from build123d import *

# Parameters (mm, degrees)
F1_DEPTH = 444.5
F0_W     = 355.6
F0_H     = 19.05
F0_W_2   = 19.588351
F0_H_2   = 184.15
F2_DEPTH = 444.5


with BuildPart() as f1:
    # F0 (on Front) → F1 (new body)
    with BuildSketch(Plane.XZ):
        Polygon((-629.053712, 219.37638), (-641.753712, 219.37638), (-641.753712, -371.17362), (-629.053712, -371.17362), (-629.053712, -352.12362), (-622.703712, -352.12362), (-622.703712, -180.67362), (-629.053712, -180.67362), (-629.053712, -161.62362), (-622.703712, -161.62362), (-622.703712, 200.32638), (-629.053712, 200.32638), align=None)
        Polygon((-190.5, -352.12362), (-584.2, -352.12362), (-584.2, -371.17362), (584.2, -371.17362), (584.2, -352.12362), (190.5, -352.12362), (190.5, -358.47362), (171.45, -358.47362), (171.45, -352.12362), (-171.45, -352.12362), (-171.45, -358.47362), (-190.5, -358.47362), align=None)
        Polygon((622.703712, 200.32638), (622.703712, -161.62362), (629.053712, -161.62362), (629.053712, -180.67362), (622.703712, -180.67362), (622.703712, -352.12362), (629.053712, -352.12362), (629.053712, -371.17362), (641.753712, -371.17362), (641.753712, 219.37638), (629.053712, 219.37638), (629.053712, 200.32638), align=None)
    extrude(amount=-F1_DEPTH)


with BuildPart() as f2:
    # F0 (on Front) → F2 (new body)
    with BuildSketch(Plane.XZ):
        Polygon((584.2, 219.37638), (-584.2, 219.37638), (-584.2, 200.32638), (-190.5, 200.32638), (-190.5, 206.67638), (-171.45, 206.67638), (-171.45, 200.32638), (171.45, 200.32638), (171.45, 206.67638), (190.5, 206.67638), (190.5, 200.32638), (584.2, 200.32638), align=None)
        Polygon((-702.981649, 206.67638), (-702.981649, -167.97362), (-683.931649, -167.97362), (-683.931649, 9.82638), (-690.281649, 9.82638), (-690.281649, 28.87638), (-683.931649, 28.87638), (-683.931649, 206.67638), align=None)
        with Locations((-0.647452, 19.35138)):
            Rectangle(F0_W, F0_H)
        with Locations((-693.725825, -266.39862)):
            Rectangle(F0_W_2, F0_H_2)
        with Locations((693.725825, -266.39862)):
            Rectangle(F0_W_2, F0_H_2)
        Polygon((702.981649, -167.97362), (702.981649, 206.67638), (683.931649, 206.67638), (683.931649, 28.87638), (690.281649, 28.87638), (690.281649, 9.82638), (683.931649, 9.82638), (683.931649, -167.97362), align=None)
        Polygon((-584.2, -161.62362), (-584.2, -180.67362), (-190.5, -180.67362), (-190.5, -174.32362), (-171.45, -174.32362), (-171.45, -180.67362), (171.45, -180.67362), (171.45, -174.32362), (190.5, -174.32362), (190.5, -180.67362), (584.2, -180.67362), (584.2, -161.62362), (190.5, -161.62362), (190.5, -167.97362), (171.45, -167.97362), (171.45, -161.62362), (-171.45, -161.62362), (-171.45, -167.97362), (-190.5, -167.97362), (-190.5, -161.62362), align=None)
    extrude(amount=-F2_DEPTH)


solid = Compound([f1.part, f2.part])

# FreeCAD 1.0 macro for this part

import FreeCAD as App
import Part
import Sketcher

V = App.Vector
Q = App.Units.Quantity

doc = App.newDocument("Part")
body = doc.addObject("PartDesign::Body", "Body")
body.AllowCompound = True

# Sketch on XZ plane
sketch1 = doc.addObject("Sketcher::SketchObject", "Sketch")
body.addObject(sketch1)
sketch1.AttachmentSupport = (doc.XZ_Plane, [""])
sketch1.MapMode = "FlatFace"
sketch1.addGeometry([
    Part.LineSegment(V(-629, 219, 0), V(-642, 219, 0)),  # 0
    Part.LineSegment(V(-642, 219, 0), V(-642, -371, 0)),  # 1
    Part.LineSegment(V(-642, -371, 0), V(-629, -371, 0)),  # 2
    Part.LineSegment(V(-629, -371, 0), V(-629, -352, 0)),  # 3
    Part.LineSegment(V(-629, -352, 0), V(-623, -352, 0)),  # 4
    Part.LineSegment(V(-623, -352, 0), V(-623, -181, 0)),  # 5
    Part.LineSegment(V(-623, -181, 0), V(-629, -181, 0)),  # 6
    Part.LineSegment(V(-629, -181, 0), V(-629, -162, 0)),  # 7
    Part.LineSegment(V(-629, -162, 0), V(-623, -162, 0)),  # 8
    Part.LineSegment(V(-623, -162, 0), V(-623, 200, 0)),  # 9
    Part.LineSegment(V(-623, 200, 0), V(-629, 200, 0)),  # 10
    Part.LineSegment(V(-629, 200, 0), V(-629, 219, 0)),  # 11
    Part.LineSegment(V(-190, -352, 0), V(-584, -352, 0)),  # 12
    Part.LineSegment(V(-584, -352, 0), V(-584, -371, 0)),  # 13
    Part.LineSegment(V(-584, -371, 0), V(584, -371, 0)),  # 14
    Part.LineSegment(V(584, -371, 0), V(584, -352, 0)),  # 15
    Part.LineSegment(V(584, -352, 0), V(190, -352, 0)),  # 16
    Part.LineSegment(V(190, -352, 0), V(190, -358, 0)),  # 17
    Part.LineSegment(V(190, -358, 0), V(171, -358, 0)),  # 18
    Part.LineSegment(V(171, -358, 0), V(171, -352, 0)),  # 19
    Part.LineSegment(V(171, -352, 0), V(-171, -352, 0)),  # 20
    Part.LineSegment(V(-171, -352, 0), V(-171, -358, 0)),  # 21
    Part.LineSegment(V(-171, -358, 0), V(-190, -358, 0)),  # 22
    Part.LineSegment(V(-190, -358, 0), V(-190, -352, 0)),  # 23
    Part.LineSegment(V(623, 200, 0), V(623, -162, 0)),  # 24
    Part.LineSegment(V(623, -162, 0), V(629, -162, 0)),  # 25
    Part.LineSegment(V(629, -162, 0), V(629, -181, 0)),  # 26
    Part.LineSegment(V(629, -181, 0), V(623, -181, 0)),  # 27
    Part.LineSegment(V(623, -181, 0), V(623, -352, 0)),  # 28
    Part.LineSegment(V(623, -352, 0), V(629, -352, 0)),  # 29
    Part.LineSegment(V(629, -352, 0), V(629, -371, 0)),  # 30
    Part.LineSegment(V(629, -371, 0), V(642, -371, 0)),  # 31
    Part.LineSegment(V(642, -371, 0), V(642, 219, 0)),  # 32
    Part.LineSegment(V(642, 219, 0), V(629, 219, 0)),  # 33
    Part.LineSegment(V(629, 219, 0), V(629, 200, 0)),  # 34
    Part.LineSegment(V(629, 200, 0), V(623, 200, 0)),  # 35
], False)
sketch1.addConstraint([
    Sketcher.Constraint("Coincident", 0, 2, 1, 1),
    Sketcher.Constraint("Coincident", 1, 2, 2, 1),
    Sketcher.Constraint("Coincident", 2, 2, 3, 1),
    Sketcher.Constraint("Coincident", 3, 2, 4, 1),
    Sketcher.Constraint("Coincident", 4, 2, 5, 1),
    Sketcher.Constraint("Coincident", 5, 2, 6, 1),
    Sketcher.Constraint("Coincident", 6, 2, 7, 1),
    Sketcher.Constraint("Coincident", 7, 2, 8, 1),
    Sketcher.Constraint("Coincident", 8, 2, 9, 1),
    Sketcher.Constraint("Coincident", 9, 2, 10, 1),
    Sketcher.Constraint("Coincident", 10, 2, 11, 1),
    Sketcher.Constraint("Coincident", 11, 2, 0, 1),
    Sketcher.Constraint("Coincident", 12, 2, 13, 1),
    Sketcher.Constraint("Coincident", 13, 2, 14, 1),
    Sketcher.Constraint("Coincident", 14, 2, 15, 1),
    Sketcher.Constraint("Coincident", 15, 2, 16, 1),
    Sketcher.Constraint("Coincident", 16, 2, 17, 1),
    Sketcher.Constraint("Coincident", 17, 2, 18, 1),
    Sketcher.Constraint("Coincident", 18, 2, 19, 1),
    Sketcher.Constraint("Coincident", 19, 2, 20, 1),
    Sketcher.Constraint("Coincident", 20, 2, 21, 1),
    Sketcher.Constraint("Coincident", 21, 2, 22, 1),
    Sketcher.Constraint("Coincident", 22, 2, 23, 1),
    Sketcher.Constraint("Coincident", 23, 2, 12, 1),
    Sketcher.Constraint("Coincident", 24, 2, 25, 1),
    Sketcher.Constraint("Coincident", 25, 2, 26, 1),
    Sketcher.Constraint("Coincident", 26, 2, 27, 1),
    Sketcher.Constraint("Coincident", 27, 2, 28, 1),
    Sketcher.Constraint("Coincident", 28, 2, 29, 1),
    Sketcher.Constraint("Coincident", 29, 2, 30, 1),
    Sketcher.Constraint("Coincident", 30, 2, 31, 1),
    Sketcher.Constraint("Coincident", 31, 2, 32, 1),
    Sketcher.Constraint("Coincident", 32, 2, 33, 1),
    Sketcher.Constraint("Coincident", 33, 2, 34, 1),
    Sketcher.Constraint("Coincident", 34, 2, 35, 1),
    Sketcher.Constraint("Coincident", 35, 2, 24, 1),
    Sketcher.Constraint("Horizontal", 0),
    Sketcher.Constraint("Vertical", 1),
    Sketcher.Constraint("Horizontal", 2),
    Sketcher.Constraint("Vertical", 3),
    Sketcher.Constraint("Horizontal", 4),
    Sketcher.Constraint("Vertical", 5),
    Sketcher.Constraint("Horizontal", 6),
    Sketcher.Constraint("Vertical", 7),
    Sketcher.Constraint("Horizontal", 8),
    Sketcher.Constraint("Vertical", 9),
    Sketcher.Constraint("Horizontal", 10),
    Sketcher.Constraint("Vertical", 11),
    Sketcher.Constraint("Horizontal", 12),
    Sketcher.Constraint("Vertical", 13),
    Sketcher.Constraint("Horizontal", 14),
    Sketcher.Constraint("Vertical", 15),
    Sketcher.Constraint("Horizontal", 16),
    Sketcher.Constraint("Vertical", 17),
    Sketcher.Constraint("Horizontal", 18),
    Sketcher.Constraint("Vertical", 19),
    Sketcher.Constraint("Horizontal", 20),
    Sketcher.Constraint("Vertical", 21),
    Sketcher.Constraint("Horizontal", 22),
    Sketcher.Constraint("Vertical", 23),
    Sketcher.Constraint("Vertical", 24),
    Sketcher.Constraint("Horizontal", 25),
    Sketcher.Constraint("Vertical", 26),
    Sketcher.Constraint("Horizontal", 27),
    Sketcher.Constraint("Vertical", 28),
    Sketcher.Constraint("Horizontal", 29),
    Sketcher.Constraint("Vertical", 30),
    Sketcher.Constraint("Horizontal", 31),
    Sketcher.Constraint("Vertical", 32),
    Sketcher.Constraint("Horizontal", 33),
    Sketcher.Constraint("Vertical", 34),
    Sketcher.Constraint("Horizontal", 35),
    Sketcher.Constraint("Symmetric", 12, 2, 15, 2, -2),
    Sketcher.Constraint("Symmetric", 18, 2, 21, 2, -2),
    Sketcher.Constraint("Symmetric", 8, 2, 24, 2, -2),
    Sketcher.Constraint("Symmetric", 6, 2, 26, 2, -2),
    Sketcher.Constraint("Symmetric", 4, 2, 28, 2, -2),
    Sketcher.Constraint("Symmetric", 2, 2, 30, 2, -2),
    Sketcher.Constraint("Symmetric", 0, 2, 32, 2, -2),
    Sketcher.Constraint("Symmetric", 10, 2, 34, 2, -2),
    Sketcher.Constraint("Horizontal", 4, 2, 12, 2),
    Sketcher.Constraint("Horizontal", 2, 2, 13, 2),
    Sketcher.Constraint("Horizontal", 16, 2, 19, 2),
    Sketcher.Constraint("Vertical", 3, 2, 6, 2),
    Sketcher.Constraint("Vertical", 5, 2, 8, 2),
    Sketcher.Constraint("Vertical", 7, 2, 10, 2),
    Sketcher.Constraint("Equal", 12, 16),
    Sketcher.Constraint("Equal", 22, 3),
    Sketcher.Constraint("Equal", 3, 7),
    Sketcher.Constraint("Equal", 7, 11),
    Sketcher.Constraint("Equal", 35, 17),
    Sketcher.Constraint("DistanceX", 14, 1, 14, 2, Q("46 in")),
    Sketcher.Constraint("DistanceX", 0, 2, 0, 1, Q("0.5 in")),
    Sketcher.Constraint("DistanceX", 12, 2, 12, 1, Q("15.5 in")),
    Sketcher.Constraint("DistanceX", 20, 2, 20, 1, Q("13.5 in")),
    Sketcher.Constraint("DistanceY", 5, 2, 9, 2, Q("15 in")),
    Sketcher.Constraint("DistanceX", 4, 1, 4, 2, Q("0.25 in")),
    Sketcher.Constraint("DistanceY", 1, 2, 1, 1, Q("23.25 in")),
    Sketcher.Constraint("DistanceX", 0, 2, -1, 1, 641.753712),
    Sketcher.Constraint("DistanceY", -1, 1, 0, 2, 219.37638),
])
pad1 = doc.addObject("PartDesign::Pad", "Pad")
body.addObject(pad1)
pad1.Profile = sketch1
pad1.Length = Q("17.5 in")
pad1.Reversed = True
body2 = doc.addObject("PartDesign::Body", "Body001")
body2.AllowCompound = True

# Sketch on XZ plane
sketch2 = doc.addObject("Sketcher::SketchObject", "Sketch001")
body2.addObject(sketch2)
sketch2.AttachmentSupport = (doc.getObject("XZ_Plane001"), [""])
sketch2.MapMode = "FlatFace"
sketch2.addGeometry([
    Part.LineSegment(V(584, 219, 0), V(-584, 219, 0)),  # 0
    Part.LineSegment(V(-584, 219, 0), V(-584, 200, 0)),  # 1
    Part.LineSegment(V(-584, 200, 0), V(-190, 200, 0)),  # 2
    Part.LineSegment(V(-190, 200, 0), V(-190, 207, 0)),  # 3
    Part.LineSegment(V(-190, 207, 0), V(-171, 207, 0)),  # 4
    Part.LineSegment(V(-171, 207, 0), V(-171, 200, 0)),  # 5
    Part.LineSegment(V(-171, 200, 0), V(171, 200, 0)),  # 6
    Part.LineSegment(V(171, 200, 0), V(171, 207, 0)),  # 7
    Part.LineSegment(V(171, 207, 0), V(190, 207, 0)),  # 8
    Part.LineSegment(V(190, 207, 0), V(190, 200, 0)),  # 9
    Part.LineSegment(V(190, 200, 0), V(584, 200, 0)),  # 10
    Part.LineSegment(V(584, 200, 0), V(584, 219, 0)),  # 11
    Part.LineSegment(V(-703, 207, 0), V(-703, -168, 0)),  # 12
    Part.LineSegment(V(-703, -168, 0), V(-684, -168, 0)),  # 13
    Part.LineSegment(V(-684, -168, 0), V(-684, 10, 0)),  # 14
    Part.LineSegment(V(-684, 10, 0), V(-690, 10, 0)),  # 15
    Part.LineSegment(V(-690, 10, 0), V(-690, 29, 0)),  # 16
    Part.LineSegment(V(-690, 29, 0), V(-684, 29, 0)),  # 17
    Part.LineSegment(V(-684, 29, 0), V(-684, 207, 0)),  # 18
    Part.LineSegment(V(-684, 207, 0), V(-703, 207, 0)),  # 19
    Part.LineSegment(V(-178, 29, 0), V(-178, 10, 0)),  # 20
    Part.LineSegment(V(-178, 10, 0), V(177, 10, 0)),  # 21
    Part.LineSegment(V(177, 10, 0), V(177, 29, 0)),  # 22
    Part.LineSegment(V(177, 29, 0), V(-178, 29, 0)),  # 23
    Part.LineSegment(V(-704, -174, 0), V(-704, -358, 0)),  # 24
    Part.LineSegment(V(-704, -358, 0), V(-684, -358, 0)),  # 25
    Part.LineSegment(V(-684, -358, 0), V(-684, -174, 0)),  # 26
    Part.LineSegment(V(-684, -174, 0), V(-704, -174, 0)),  # 27
    Part.LineSegment(V(684, -174, 0), V(684, -358, 0)),  # 28
    Part.LineSegment(V(684, -358, 0), V(704, -358, 0)),  # 29
    Part.LineSegment(V(704, -358, 0), V(704, -174, 0)),  # 30
    Part.LineSegment(V(704, -174, 0), V(684, -174, 0)),  # 31
    Part.LineSegment(V(703, -168, 0), V(703, 207, 0)),  # 32
    Part.LineSegment(V(703, 207, 0), V(684, 207, 0)),  # 33
    Part.LineSegment(V(684, 207, 0), V(684, 29, 0)),  # 34
    Part.LineSegment(V(684, 29, 0), V(690, 29, 0)),  # 35
    Part.LineSegment(V(690, 29, 0), V(690, 10, 0)),  # 36
    Part.LineSegment(V(690, 10, 0), V(684, 10, 0)),  # 37
    Part.LineSegment(V(684, 10, 0), V(684, -168, 0)),  # 38
    Part.LineSegment(V(684, -168, 0), V(703, -168, 0)),  # 39
    Part.LineSegment(V(-584, -162, 0), V(-584, -181, 0)),  # 40
    Part.LineSegment(V(-584, -181, 0), V(-190, -181, 0)),  # 41
    Part.LineSegment(V(-190, -181, 0), V(-190, -174, 0)),  # 42
    Part.LineSegment(V(-190, -174, 0), V(-171, -174, 0)),  # 43
    Part.LineSegment(V(-171, -174, 0), V(-171, -181, 0)),  # 44
    Part.LineSegment(V(-171, -181, 0), V(171, -181, 0)),  # 45
    Part.LineSegment(V(171, -181, 0), V(171, -174, 0)),  # 46
    Part.LineSegment(V(171, -174, 0), V(190, -174, 0)),  # 47
    Part.LineSegment(V(190, -174, 0), V(190, -181, 0)),  # 48
    Part.LineSegment(V(190, -181, 0), V(584, -181, 0)),  # 49
    Part.LineSegment(V(584, -181, 0), V(584, -162, 0)),  # 50
    Part.LineSegment(V(584, -162, 0), V(190, -162, 0)),  # 51
    Part.LineSegment(V(190, -162, 0), V(190, -168, 0)),  # 52
    Part.LineSegment(V(190, -168, 0), V(171, -168, 0)),  # 53
    Part.LineSegment(V(171, -168, 0), V(171, -162, 0)),  # 54
    Part.LineSegment(V(171, -162, 0), V(-171, -162, 0)),  # 55
    Part.LineSegment(V(-171, -162, 0), V(-171, -168, 0)),  # 56
    Part.LineSegment(V(-171, -168, 0), V(-190, -168, 0)),  # 57
    Part.LineSegment(V(-190, -168, 0), V(-190, -162, 0)),  # 58
    Part.LineSegment(V(-190, -162, 0), V(-584, -162, 0)),  # 59
], False)
sketch2.addConstraint([
    Sketcher.Constraint("Coincident", 0, 2, 1, 1),
    Sketcher.Constraint("Coincident", 1, 2, 2, 1),
    Sketcher.Constraint("Coincident", 2, 2, 3, 1),
    Sketcher.Constraint("Coincident", 3, 2, 4, 1),
    Sketcher.Constraint("Coincident", 4, 2, 5, 1),
    Sketcher.Constraint("Coincident", 5, 2, 6, 1),
    Sketcher.Constraint("Coincident", 6, 2, 7, 1),
    Sketcher.Constraint("Coincident", 7, 2, 8, 1),
    Sketcher.Constraint("Coincident", 8, 2, 9, 1),
    Sketcher.Constraint("Coincident", 9, 2, 10, 1),
    Sketcher.Constraint("Coincident", 10, 2, 11, 1),
    Sketcher.Constraint("Coincident", 11, 2, 0, 1),
    Sketcher.Constraint("Coincident", 12, 2, 13, 1),
    Sketcher.Constraint("Coincident", 13, 2, 14, 1),
    Sketcher.Constraint("Coincident", 14, 2, 15, 1),
    Sketcher.Constraint("Coincident", 15, 2, 16, 1),
    Sketcher.Constraint("Coincident", 16, 2, 17, 1),
    Sketcher.Constraint("Coincident", 17, 2, 18, 1),
    Sketcher.Constraint("Coincident", 18, 2, 19, 1),
    Sketcher.Constraint("Coincident", 19, 2, 12, 1),
    Sketcher.Constraint("Coincident", 20, 2, 21, 1),
    Sketcher.Constraint("Coincident", 21, 2, 22, 1),
    Sketcher.Constraint("Coincident", 22, 2, 23, 1),
    Sketcher.Constraint("Coincident", 23, 2, 20, 1),
    Sketcher.Constraint("Coincident", 24, 2, 25, 1),
    Sketcher.Constraint("Coincident", 25, 2, 26, 1),
    Sketcher.Constraint("Coincident", 26, 2, 27, 1),
    Sketcher.Constraint("Coincident", 27, 2, 24, 1),
    Sketcher.Constraint("Coincident", 28, 2, 29, 1),
    Sketcher.Constraint("Coincident", 29, 2, 30, 1),
    Sketcher.Constraint("Coincident", 30, 2, 31, 1),
    Sketcher.Constraint("Coincident", 31, 2, 28, 1),
    Sketcher.Constraint("Coincident", 32, 2, 33, 1),
    Sketcher.Constraint("Coincident", 33, 2, 34, 1),
    Sketcher.Constraint("Coincident", 34, 2, 35, 1),
    Sketcher.Constraint("Coincident", 35, 2, 36, 1),
    Sketcher.Constraint("Coincident", 36, 2, 37, 1),
    Sketcher.Constraint("Coincident", 37, 2, 38, 1),
    Sketcher.Constraint("Coincident", 38, 2, 39, 1),
    Sketcher.Constraint("Coincident", 39, 2, 32, 1),
    Sketcher.Constraint("Coincident", 40, 2, 41, 1),
    Sketcher.Constraint("Coincident", 41, 2, 42, 1),
    Sketcher.Constraint("Coincident", 42, 2, 43, 1),
    Sketcher.Constraint("Coincident", 43, 2, 44, 1),
    Sketcher.Constraint("Coincident", 44, 2, 45, 1),
    Sketcher.Constraint("Coincident", 45, 2, 46, 1),
    Sketcher.Constraint("Coincident", 46, 2, 47, 1),
    Sketcher.Constraint("Coincident", 47, 2, 48, 1),
    Sketcher.Constraint("Coincident", 48, 2, 49, 1),
    Sketcher.Constraint("Coincident", 49, 2, 50, 1),
    Sketcher.Constraint("Coincident", 50, 2, 51, 1),
    Sketcher.Constraint("Coincident", 51, 2, 52, 1),
    Sketcher.Constraint("Coincident", 52, 2, 53, 1),
    Sketcher.Constraint("Coincident", 53, 2, 54, 1),
    Sketcher.Constraint("Coincident", 54, 2, 55, 1),
    Sketcher.Constraint("Coincident", 55, 2, 56, 1),
    Sketcher.Constraint("Coincident", 56, 2, 57, 1),
    Sketcher.Constraint("Coincident", 57, 2, 58, 1),
    Sketcher.Constraint("Coincident", 58, 2, 59, 1),
    Sketcher.Constraint("Coincident", 59, 2, 40, 1),
    Sketcher.Constraint("Horizontal", 0),
    Sketcher.Constraint("Vertical", 1),
    Sketcher.Constraint("Horizontal", 2),
    Sketcher.Constraint("Vertical", 3),
    Sketcher.Constraint("Horizontal", 4),
    Sketcher.Constraint("Vertical", 5),
    Sketcher.Constraint("Horizontal", 6),
    Sketcher.Constraint("Vertical", 7),
    Sketcher.Constraint("Horizontal", 8),
    Sketcher.Constraint("Vertical", 9),
    Sketcher.Constraint("Horizontal", 10),
    Sketcher.Constraint("Vertical", 11),
    Sketcher.Constraint("Vertical", 12),
    Sketcher.Constraint("Horizontal", 13),
    Sketcher.Constraint("Vertical", 14),
    Sketcher.Constraint("Horizontal", 15),
    Sketcher.Constraint("Vertical", 16),
    Sketcher.Constraint("Horizontal", 17),
    Sketcher.Constraint("Vertical", 18),
    Sketcher.Constraint("Horizontal", 19),
    Sketcher.Constraint("Vertical", 20),
    Sketcher.Constraint("Horizontal", 21),
    Sketcher.Constraint("Vertical", 22),
    Sketcher.Constraint("Horizontal", 23),
    Sketcher.Constraint("Vertical", 24),
    Sketcher.Constraint("Horizontal", 25),
    Sketcher.Constraint("Vertical", 26),
    Sketcher.Constraint("Horizontal", 27),
    Sketcher.Constraint("Vertical", 28),
    Sketcher.Constraint("Horizontal", 29),
    Sketcher.Constraint("Vertical", 30),
    Sketcher.Constraint("Horizontal", 31),
    Sketcher.Constraint("Vertical", 32),
    Sketcher.Constraint("Horizontal", 33),
    Sketcher.Constraint("Vertical", 34),
    Sketcher.Constraint("Horizontal", 35),
    Sketcher.Constraint("Vertical", 36),
    Sketcher.Constraint("Horizontal", 37),
    Sketcher.Constraint("Vertical", 38),
    Sketcher.Constraint("Horizontal", 39),
    Sketcher.Constraint("Vertical", 40),
    Sketcher.Constraint("Horizontal", 41),
    Sketcher.Constraint("Vertical", 42),
    Sketcher.Constraint("Horizontal", 43),
    Sketcher.Constraint("Vertical", 44),
    Sketcher.Constraint("Horizontal", 45),
    Sketcher.Constraint("Vertical", 46),
    Sketcher.Constraint("Horizontal", 47),
    Sketcher.Constraint("Vertical", 48),
    Sketcher.Constraint("Horizontal", 49),
    Sketcher.Constraint("Vertical", 50),
    Sketcher.Constraint("Horizontal", 51),
    Sketcher.Constraint("Vertical", 52),
    Sketcher.Constraint("Horizontal", 53),
    Sketcher.Constraint("Vertical", 54),
    Sketcher.Constraint("Horizontal", 55),
    Sketcher.Constraint("Vertical", 56),
    Sketcher.Constraint("Horizontal", 57),
    Sketcher.Constraint("Vertical", 58),
    Sketcher.Constraint("Horizontal", 59),
    Sketcher.Constraint("Symmetric", 4, 2, 7, 2, -2),
    Sketcher.Constraint("Symmetric", 2, 2, 9, 2, -2),
    Sketcher.Constraint("Symmetric", 25, 2, 28, 2, -2),
    Sketcher.Constraint("Symmetric", 27, 2, 30, 2, -2),
    Sketcher.Constraint("Symmetric", 19, 2, 32, 2, -2),
    Sketcher.Constraint("Symmetric", 17, 2, 34, 2, -2),
    Sketcher.Constraint("Symmetric", 15, 2, 36, 2, -2),
    Sketcher.Constraint("Symmetric", 13, 2, 38, 2, -2),
    Sketcher.Constraint("Symmetric", 43, 2, 46, 2, -2),
    Sketcher.Constraint("Symmetric", 41, 2, 48, 2, -2),
    Sketcher.Constraint("Symmetric", 53, 2, 56, 2, -2),
    Sketcher.Constraint("Symmetric", 51, 2, 58, 2, -2),
    Sketcher.Constraint("Horizontal", 2, 2, 5, 2),
    Sketcher.Constraint("Horizontal", 8, 2, 18, 2),
    Sketcher.Constraint("Horizontal", 15, 2, 20, 2),
    Sketcher.Constraint("Horizontal", 17, 2, 22, 2),
    Sketcher.Constraint("Horizontal", 31, 2, 42, 2),
    Sketcher.Constraint("Horizontal", 41, 2, 44, 2),
    Sketcher.Constraint("Horizontal", 39, 2, 52, 2),
    Sketcher.Constraint("Horizontal", 51, 2, 54, 2),
    Sketcher.Constraint("Vertical", 14, 2, 17, 2),
    Sketcher.Constraint("Vertical", 18, 2, 25, 2),
    Sketcher.Constraint("Vertical", 1, 2, 40, 2),
    Sketcher.Constraint("Vertical", 3, 2, 41, 2),
    Sketcher.Constraint("Vertical", 5, 2, 43, 2),
    Sketcher.Constraint("Vertical", 11, 2, 49, 2),
    Sketcher.Constraint("Vertical", 48, 2, 51, 2),
    Sketcher.Constraint("Vertical", 46, 2, 53, 2),
    Sketcher.Constraint("Equal", 2, 10),
    Sketcher.Constraint("Equal", 8, 13),
    Sketcher.Constraint("Equal", 57, 1),
    Sketcher.Constraint("Equal", 37, 3),
    Sketcher.Constraint("Equal", 11, 16),
    Sketcher.Constraint("Equal", 14, 18),
    Sketcher.Constraint("Equal", 36, 40),
    Sketcher.Constraint("Equal", 9, 42),
    Sketcher.Constraint("Equal", 48, 52),
    Sketcher.Constraint("DistanceX", 0, 2, 0, 1, Q("46 in")),
    Sketcher.Constraint("DistanceX", 21, 1, 21, 2, Q("14 in")),
    Sketcher.Constraint("DistanceY", 14, 1, 14, 2, Q("7 in")),
    Sketcher.Constraint("DistanceX", 2, 1, 2, 2, Q("15.5 in")),
    Sketcher.Constraint("DistanceX", 6, 1, 6, 2, Q("13.5 in")),
    Sketcher.Constraint("DistanceY", 28, 2, 10, 2, Q("22 in")),
    Sketcher.Constraint("DistanceY", 30, 2, 32, 2, Q("15 in")),
    Sketcher.Constraint("DistanceX", 25, 1, 25, 2, 19.588351),
    Sketcher.Constraint("DistanceX", 24, 2, -1, 1, 703.520001),
    Sketcher.Constraint("DistanceX", 21, 2, 28, 2, 506.779102),
    Sketcher.Constraint("DistanceY", -1, 1, 0, 2, 219.37638),
])
pad2 = doc.addObject("PartDesign::Pad", "Pad001")
body2.addObject(pad2)
pad2.Profile = sketch2
pad2.Length = Q("17.5 in")
pad2.Reversed = True

doc.recompute()
